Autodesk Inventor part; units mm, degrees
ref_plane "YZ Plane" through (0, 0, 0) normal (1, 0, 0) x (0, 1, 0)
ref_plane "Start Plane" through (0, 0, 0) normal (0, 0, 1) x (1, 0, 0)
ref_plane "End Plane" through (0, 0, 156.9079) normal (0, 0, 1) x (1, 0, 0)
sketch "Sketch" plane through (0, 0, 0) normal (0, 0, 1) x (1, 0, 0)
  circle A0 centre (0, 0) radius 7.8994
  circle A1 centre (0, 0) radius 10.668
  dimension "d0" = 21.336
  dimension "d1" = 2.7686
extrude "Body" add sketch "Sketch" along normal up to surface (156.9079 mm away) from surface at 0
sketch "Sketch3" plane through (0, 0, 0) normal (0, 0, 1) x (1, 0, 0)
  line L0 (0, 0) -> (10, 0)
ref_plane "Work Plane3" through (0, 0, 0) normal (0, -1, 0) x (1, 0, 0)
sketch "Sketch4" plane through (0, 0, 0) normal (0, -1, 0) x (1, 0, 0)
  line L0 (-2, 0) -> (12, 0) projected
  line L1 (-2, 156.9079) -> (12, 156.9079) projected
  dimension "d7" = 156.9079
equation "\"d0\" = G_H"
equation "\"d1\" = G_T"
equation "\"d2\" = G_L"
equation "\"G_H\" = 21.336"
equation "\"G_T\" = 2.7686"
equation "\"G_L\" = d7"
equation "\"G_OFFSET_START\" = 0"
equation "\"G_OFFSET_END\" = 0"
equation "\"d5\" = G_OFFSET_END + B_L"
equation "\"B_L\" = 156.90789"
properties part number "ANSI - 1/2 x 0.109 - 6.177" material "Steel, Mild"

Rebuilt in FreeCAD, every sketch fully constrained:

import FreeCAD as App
import Part
import Sketcher

V = App.Vector
Q = App.Units.Quantity

doc = App.newDocument("Part")
body = doc.addObject("PartDesign::Body", "Body")

# Sketch on XY plane
sketch1 = body.newObject("Sketcher::SketchObject", "Sketch")
sketch1.AttachmentSupport = (doc.getObject("XY_Plane"), [""])
sketch1.MapMode = "FlatFace"
sketch1.addGeometry([
    Part.Circle(V(0, 0, 0), V(0, 0, 1), 10.668),
    Part.Circle(V(0, 0, 0), V(0, 0, 1), 7.8994),
], False)
sketch1.addConstraint([
    Sketcher.Constraint("Coincident", 0, 3, -1, 1),
    Sketcher.Constraint("Coincident", 1, 3, -1, 1),
    Sketcher.Constraint("Diameter", 0, Q("0.84 in")),
    Sketcher.Constraint("Diameter", 1, Q("0.622 in")),
])
pad1 = body.newObject("PartDesign::Pad", "Pad")
pad1.Profile = sketch1
pad1.Length = 156.9079

doc.recompute()
